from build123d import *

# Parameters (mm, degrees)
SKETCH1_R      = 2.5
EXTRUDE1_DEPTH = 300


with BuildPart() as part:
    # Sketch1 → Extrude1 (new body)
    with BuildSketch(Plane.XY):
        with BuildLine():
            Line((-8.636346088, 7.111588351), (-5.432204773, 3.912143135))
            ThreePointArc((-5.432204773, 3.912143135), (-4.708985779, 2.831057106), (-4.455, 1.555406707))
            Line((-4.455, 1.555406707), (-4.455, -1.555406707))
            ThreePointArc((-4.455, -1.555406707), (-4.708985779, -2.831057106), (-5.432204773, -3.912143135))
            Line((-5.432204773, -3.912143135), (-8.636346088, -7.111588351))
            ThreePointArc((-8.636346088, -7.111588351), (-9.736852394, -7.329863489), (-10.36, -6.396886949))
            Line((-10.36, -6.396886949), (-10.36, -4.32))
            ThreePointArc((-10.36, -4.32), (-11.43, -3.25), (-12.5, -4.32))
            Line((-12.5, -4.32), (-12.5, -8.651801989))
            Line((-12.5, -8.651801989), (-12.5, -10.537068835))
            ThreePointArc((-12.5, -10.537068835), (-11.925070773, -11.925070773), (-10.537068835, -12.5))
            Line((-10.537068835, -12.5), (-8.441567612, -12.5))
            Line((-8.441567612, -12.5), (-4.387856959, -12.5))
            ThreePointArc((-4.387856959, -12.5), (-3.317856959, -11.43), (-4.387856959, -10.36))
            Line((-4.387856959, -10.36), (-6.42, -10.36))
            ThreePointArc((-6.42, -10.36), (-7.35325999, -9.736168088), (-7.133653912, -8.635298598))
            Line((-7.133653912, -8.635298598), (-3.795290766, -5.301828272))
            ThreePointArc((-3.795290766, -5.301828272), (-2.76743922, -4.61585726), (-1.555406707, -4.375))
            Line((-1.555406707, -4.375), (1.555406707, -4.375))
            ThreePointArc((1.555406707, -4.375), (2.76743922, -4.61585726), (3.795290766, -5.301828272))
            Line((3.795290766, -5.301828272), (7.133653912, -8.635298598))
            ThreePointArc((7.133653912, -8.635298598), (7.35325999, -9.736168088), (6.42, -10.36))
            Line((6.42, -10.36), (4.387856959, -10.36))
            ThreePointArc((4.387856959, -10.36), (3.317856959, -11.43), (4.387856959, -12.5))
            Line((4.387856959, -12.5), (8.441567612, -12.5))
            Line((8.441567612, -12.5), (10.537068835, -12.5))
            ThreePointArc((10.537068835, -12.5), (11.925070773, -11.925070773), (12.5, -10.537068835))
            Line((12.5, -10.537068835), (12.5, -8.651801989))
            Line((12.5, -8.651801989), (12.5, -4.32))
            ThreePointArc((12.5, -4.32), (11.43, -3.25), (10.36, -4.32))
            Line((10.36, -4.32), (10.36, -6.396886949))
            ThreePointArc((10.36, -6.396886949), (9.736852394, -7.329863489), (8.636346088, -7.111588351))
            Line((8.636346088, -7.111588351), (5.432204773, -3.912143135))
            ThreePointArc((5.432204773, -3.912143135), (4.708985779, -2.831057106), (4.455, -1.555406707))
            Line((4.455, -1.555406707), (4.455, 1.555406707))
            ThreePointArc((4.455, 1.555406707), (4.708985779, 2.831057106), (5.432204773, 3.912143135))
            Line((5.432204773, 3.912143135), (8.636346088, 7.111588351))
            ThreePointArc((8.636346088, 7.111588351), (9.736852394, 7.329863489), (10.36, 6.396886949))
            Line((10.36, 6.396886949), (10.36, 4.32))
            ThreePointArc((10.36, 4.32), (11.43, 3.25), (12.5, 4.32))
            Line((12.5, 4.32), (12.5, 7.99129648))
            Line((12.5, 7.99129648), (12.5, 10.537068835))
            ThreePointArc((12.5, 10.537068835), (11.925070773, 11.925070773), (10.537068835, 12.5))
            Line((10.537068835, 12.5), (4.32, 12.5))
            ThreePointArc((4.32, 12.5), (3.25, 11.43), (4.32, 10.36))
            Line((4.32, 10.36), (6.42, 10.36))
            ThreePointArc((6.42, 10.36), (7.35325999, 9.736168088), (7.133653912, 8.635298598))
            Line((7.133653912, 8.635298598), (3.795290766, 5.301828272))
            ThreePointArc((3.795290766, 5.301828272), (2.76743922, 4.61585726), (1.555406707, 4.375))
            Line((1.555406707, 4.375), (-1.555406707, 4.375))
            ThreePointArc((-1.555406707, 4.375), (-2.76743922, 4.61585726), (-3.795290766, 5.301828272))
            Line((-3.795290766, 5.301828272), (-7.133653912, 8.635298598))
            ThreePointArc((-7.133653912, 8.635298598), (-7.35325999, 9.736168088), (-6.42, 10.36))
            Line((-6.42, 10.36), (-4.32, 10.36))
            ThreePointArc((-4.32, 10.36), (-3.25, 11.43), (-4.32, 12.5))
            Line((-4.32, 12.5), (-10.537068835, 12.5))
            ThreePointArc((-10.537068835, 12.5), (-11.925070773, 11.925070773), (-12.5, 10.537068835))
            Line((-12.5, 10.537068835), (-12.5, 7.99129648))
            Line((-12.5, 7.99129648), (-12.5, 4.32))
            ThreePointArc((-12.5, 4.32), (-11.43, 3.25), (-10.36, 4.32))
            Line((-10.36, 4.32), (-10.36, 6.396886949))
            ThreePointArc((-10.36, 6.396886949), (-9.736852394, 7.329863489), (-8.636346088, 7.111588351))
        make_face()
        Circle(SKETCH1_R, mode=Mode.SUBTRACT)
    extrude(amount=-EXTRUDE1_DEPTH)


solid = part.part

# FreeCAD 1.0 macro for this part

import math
import FreeCAD as App
import Part
import Sketcher
Q = App.Units.Quantity

doc = App.newDocument("Part")
body = doc.addObject("PartDesign::Body", "Body")

sketch1 = body.newObject("Sketcher::SketchObject", "Sketch")
sketch1.AttachmentSupport = (doc.getObject("XY_Plane"), [""])
sketch1.MapMode = "FlatFace"
sketch1.addGeometry([
    Part.LineSegment(App.Vector(-8.6, 7.1, 0), App.Vector(-5.4, 3.9, 0)),
    Part.ArcOfCircle(Part.Circle(App.Vector(-7.8, 1.6, 0), App.Vector(0, 0, 1), 3.3), math.radians(0), math.radians(45)),
    Part.LineSegment(App.Vector(-4.5, 1.6, 0), App.Vector(-4.5, -1.6, 0)),
    Part.ArcOfCircle(Part.Circle(App.Vector(-7.8, -1.6, 0), App.Vector(0, 0, 1), 3.3), math.radians(-45), math.radians(0)),
    Part.LineSegment(App.Vector(-5.4, -3.9, 0), App.Vector(-8.6, -7.1, 0)),
    Part.ArcOfCircle(Part.Circle(App.Vector(-9.3, -6.4, 0), App.Vector(0, 0, 1), 1), math.radians(-180), math.radians(-45)),
    Part.LineSegment(App.Vector(-10.4, -6.4, 0), App.Vector(-10.4, -4.3, 0)),
    Part.ArcOfCircle(Part.Circle(App.Vector(-11.4, -4.3, 0), App.Vector(0, 0, 1), 1.1), math.radians(0), math.radians(180)),
    Part.LineSegment(App.Vector(-12.5, -4.3, 0), App.Vector(-12.5, -10.5, 0)),
    Part.ArcOfCircle(Part.Circle(App.Vector(-10.5, -10.5, 0), App.Vector(0, 0, 1), 2), math.radians(180), math.radians(270)),
    Part.LineSegment(App.Vector(-10.5, -12.5, 0), App.Vector(-4.4, -12.5, 0)),
    Part.ArcOfCircle(Part.Circle(App.Vector(-4.4, -11.4, 0), App.Vector(0, 0, 1), 1.1), math.radians(-90), math.radians(90)),
    Part.LineSegment(App.Vector(-4.4, -10.4, 0), App.Vector(-6.4, -10.4, 0)),
    Part.ArcOfCircle(Part.Circle(App.Vector(-6.4, -9.3, 0), App.Vector(0, 0, 1), 1), math.radians(135), math.radians(270)),
    Part.LineSegment(App.Vector(-7.1, -8.6, 0), App.Vector(-3.8, -5.3, 0)),
    Part.ArcOfCircle(Part.Circle(App.Vector(-1.6, -7.5, 0), App.Vector(0, 0, 1), 3.2), math.radians(90), math.radians(135)),
    Part.LineSegment(App.Vector(-1.6, -4.4, 0), App.Vector(1.6, -4.4, 0)),
    Part.ArcOfCircle(Part.Circle(App.Vector(1.6, -7.5, 0), App.Vector(0, 0, 1), 3.2), math.radians(45), math.radians(90)),
    Part.LineSegment(App.Vector(3.8, -5.3, 0), App.Vector(7.1, -8.6, 0)),
    Part.ArcOfCircle(Part.Circle(App.Vector(6.4, -9.3, 0), App.Vector(0, 0, 1), 1), math.radians(-90), math.radians(45)),
    Part.LineSegment(App.Vector(6.4, -10.4, 0), App.Vector(4.4, -10.4, 0)),
    Part.ArcOfCircle(Part.Circle(App.Vector(4.4, -11.4, 0), App.Vector(0, 0, 1), 1.1), math.radians(90), math.radians(270)),
    Part.LineSegment(App.Vector(4.4, -12.5, 0), App.Vector(10.5, -12.5, 0)),
    Part.ArcOfCircle(Part.Circle(App.Vector(10.5, -10.5, 0), App.Vector(0, 0, 1), 2), math.radians(-90), math.radians(0)),
    Part.LineSegment(App.Vector(12.5, -10.5, 0), App.Vector(12.5, -4.3, 0)),
    Part.ArcOfCircle(Part.Circle(App.Vector(11.4, -4.3, 0), App.Vector(0, 0, 1), 1.1), math.radians(0), math.radians(180)),
    Part.LineSegment(App.Vector(10.4, -4.3, 0), App.Vector(10.4, -6.4, 0)),
    Part.ArcOfCircle(Part.Circle(App.Vector(9.3, -6.4, 0), App.Vector(0, 0, 1), 1), math.radians(-135), math.radians(0)),
    Part.LineSegment(App.Vector(8.6, -7.1, 0), App.Vector(5.4, -3.9, 0)),
    Part.ArcOfCircle(Part.Circle(App.Vector(7.8, -1.6, 0), App.Vector(0, 0, 1), 3.3), math.radians(180), math.radians(225)),
    Part.LineSegment(App.Vector(4.5, -1.6, 0), App.Vector(4.5, 1.6, 0)),
    Part.ArcOfCircle(Part.Circle(App.Vector(7.8, 1.6, 0), App.Vector(0, 0, 1), 3.3), math.radians(135), math.radians(180)),
    Part.LineSegment(App.Vector(5.4, 3.9, 0), App.Vector(8.6, 7.1, 0)),
    Part.ArcOfCircle(Part.Circle(App.Vector(9.3, 6.4, 0), App.Vector(0, 0, 1), 1), math.radians(0), math.radians(135)),
    Part.LineSegment(App.Vector(10.4, 6.4, 0), App.Vector(10.4, 4.3, 0)),
    Part.ArcOfCircle(Part.Circle(App.Vector(11.4, 4.3, 0), App.Vector(0, 0, 1), 1.1), math.radians(180), math.radians(360)),
    Part.LineSegment(App.Vector(12.5, 4.3, 0), App.Vector(12.5, 10.5, 0)),
    Part.ArcOfCircle(Part.Circle(App.Vector(10.5, 10.5, 0), App.Vector(0, 0, 1), 2), math.radians(0), math.radians(90)),
    Part.LineSegment(App.Vector(10.5, 12.5, 0), App.Vector(4.3, 12.5, 0)),
    Part.ArcOfCircle(Part.Circle(App.Vector(4.3, 11.4, 0), App.Vector(0, 0, 1), 1.1), math.radians(90), math.radians(270)),
    Part.LineSegment(App.Vector(4.3, 10.4, 0), App.Vector(6.4, 10.4, 0)),
    Part.ArcOfCircle(Part.Circle(App.Vector(6.4, 9.3, 0), App.Vector(0, 0, 1), 1), math.radians(-45), math.radians(90)),
    Part.LineSegment(App.Vector(7.1, 8.6, 0), App.Vector(3.8, 5.3, 0)),
    Part.ArcOfCircle(Part.Circle(App.Vector(1.6, 7.5, 0), App.Vector(0, 0, 1), 3.2), math.radians(-90), math.radians(-45)),
    Part.LineSegment(App.Vector(1.6, 4.4, 0), App.Vector(-1.6, 4.4, 0)),
    Part.ArcOfCircle(Part.Circle(App.Vector(-1.6, 7.5, 0), App.Vector(0, 0, 1), 3.2), math.radians(-135), math.radians(-90)),
    Part.LineSegment(App.Vector(-3.8, 5.3, 0), App.Vector(-7.1, 8.6, 0)),
    Part.ArcOfCircle(Part.Circle(App.Vector(-6.4, 9.3, 0), App.Vector(0, 0, 1), 1), math.radians(90), math.radians(225)),
    Part.LineSegment(App.Vector(-6.4, 10.4, 0), App.Vector(-4.3, 10.4, 0)),
    Part.ArcOfCircle(Part.Circle(App.Vector(-4.3, 11.4, 0), App.Vector(0, 0, 1), 1.1), math.radians(-90), math.radians(90)),
    Part.LineSegment(App.Vector(-4.3, 12.5, 0), App.Vector(-10.5, 12.5, 0)),
    Part.ArcOfCircle(Part.Circle(App.Vector(-10.5, 10.5, 0), App.Vector(0, 0, 1), 2), math.radians(90), math.radians(180)),
    Part.LineSegment(App.Vector(-12.5, 10.5, 0), App.Vector(-12.5, 4.3, 0)),
    Part.ArcOfCircle(Part.Circle(App.Vector(-11.4, 4.3, 0), App.Vector(0, 0, 1), 1.1), math.radians(180), math.radians(360)),
    Part.LineSegment(App.Vector(-10.4, 4.3, 0), App.Vector(-10.4, 6.4, 0)),
    Part.ArcOfCircle(Part.Circle(App.Vector(-9.3, 6.4, 0), App.Vector(0, 0, 1), 1), math.radians(45), math.radians(180)),
    Part.Circle(App.Vector(0, 0, 0), App.Vector(0, 0, 1), 2.5),
], False)
sketch1.addConstraint([
    Sketcher.Constraint("Tangent", 0, 2, 1, 2),
    Sketcher.Constraint("Tangent", 1, 1, 2, 1),
    Sketcher.Constraint("Tangent", 2, 2, 3, 2),
    Sketcher.Constraint("Tangent", 3, 1, 4, 1),
    Sketcher.Constraint("Tangent", 4, 2, 5, 2),
    Sketcher.Constraint("Tangent", 5, 1, 6, 1),
    Sketcher.Constraint("Tangent", 6, 2, 7, 1),
    Sketcher.Constraint("Tangent", 7, 2, 8, 1),
    Sketcher.Constraint("Tangent", 8, 2, 9, 1),
    Sketcher.Constraint("Tangent", 9, 2, 10, 1),
    Sketcher.Constraint("Tangent", 10, 2, 11, 1),
    Sketcher.Constraint("Tangent", 11, 2, 12, 1),
    Sketcher.Constraint("Tangent", 12, 2, 13, 2),
    Sketcher.Constraint("Tangent", 13, 1, 14, 1),
    Sketcher.Constraint("Tangent", 14, 2, 15, 2),
    Sketcher.Constraint("Tangent", 15, 1, 16, 1),
    Sketcher.Constraint("Tangent", 16, 2, 17, 2),
    Sketcher.Constraint("Tangent", 17, 1, 18, 1),
    Sketcher.Constraint("Tangent", 18, 2, 19, 2),
    Sketcher.Constraint("Tangent", 19, 1, 20, 1),
    Sketcher.Constraint("Tangent", 20, 2, 21, 1),
    Sketcher.Constraint("Tangent", 21, 2, 22, 1),
    Sketcher.Constraint("Tangent", 22, 2, 23, 1),
    Sketcher.Constraint("Tangent", 23, 2, 24, 1),
    Sketcher.Constraint("Tangent", 24, 2, 25, 1),
    Sketcher.Constraint("Tangent", 25, 2, 26, 1),
    Sketcher.Constraint("Tangent", 26, 2, 27, 2),
    Sketcher.Constraint("Tangent", 27, 1, 28, 1),
    Sketcher.Constraint("Tangent", 28, 2, 29, 2),
    Sketcher.Constraint("Tangent", 29, 1, 30, 1),
    Sketcher.Constraint("Tangent", 30, 2, 31, 2),
    Sketcher.Constraint("Tangent", 31, 1, 32, 1),
    Sketcher.Constraint("Tangent", 32, 2, 33, 2),
    Sketcher.Constraint("Tangent", 33, 1, 34, 1),
    Sketcher.Constraint("Tangent", 34, 2, 35, 1),
    Sketcher.Constraint("Tangent", 35, 2, 36, 1),
    Sketcher.Constraint("Tangent", 36, 2, 37, 1),
    Sketcher.Constraint("Tangent", 37, 2, 38, 1),
    Sketcher.Constraint("Tangent", 38, 2, 39, 1),
    Sketcher.Constraint("Tangent", 39, 2, 40, 1),
    Sketcher.Constraint("Tangent", 40, 2, 41, 2),
    Sketcher.Constraint("Tangent", 41, 1, 42, 1),
    Sketcher.Constraint("Tangent", 42, 2, 43, 2),
    Sketcher.Constraint("Tangent", 43, 1, 44, 1),
    Sketcher.Constraint("Tangent", 44, 2, 45, 2),
    Sketcher.Constraint("Tangent", 45, 1, 46, 1),
    Sketcher.Constraint("Tangent", 46, 2, 47, 2),
    Sketcher.Constraint("Tangent", 47, 1, 48, 1),
    Sketcher.Constraint("Tangent", 48, 2, 49, 1),
    Sketcher.Constraint("Tangent", 49, 2, 50, 1),
    Sketcher.Constraint("Tangent", 50, 2, 51, 1),
    Sketcher.Constraint("Tangent", 51, 2, 52, 1),
    Sketcher.Constraint("Tangent", 52, 2, 53, 1),
    Sketcher.Constraint("Tangent", 53, 2, 54, 1),
    Sketcher.Constraint("Tangent", 54, 2, 55, 2),
    Sketcher.Constraint("Tangent", 55, 1, 0, 1),
    Sketcher.Constraint("Vertical", 2),
    Sketcher.Constraint("Vertical", 6),
    Sketcher.Constraint("Vertical", 8),
    Sketcher.Constraint("Horizontal", 10),
    Sketcher.Constraint("Horizontal", 12),
    Sketcher.Constraint("Horizontal", 16),
    Sketcher.Constraint("Horizontal", 20),
    Sketcher.Constraint("Horizontal", 22),
    Sketcher.Constraint("Vertical", 24),
    Sketcher.Constraint("Vertical", 26),
    Sketcher.Constraint("Vertical", 30),
    Sketcher.Constraint("Vertical", 34),
    Sketcher.Constraint("Vertical", 36),
    Sketcher.Constraint("Horizontal", 38),
    Sketcher.Constraint("Horizontal", 40),
    Sketcher.Constraint("Horizontal", 44),
    Sketcher.Constraint("Horizontal", 48),
    Sketcher.Constraint("Horizontal", 50),
    Sketcher.Constraint("Vertical", 52),
    Sketcher.Constraint("Vertical", 54),
    Sketcher.Constraint("Coincident", 56, 3, -1, 1),
    Sketcher.Constraint("Equal", 1, 3),
    Sketcher.Constraint("Equal", 7, 11),
    Sketcher.Constraint("Equal", 5, 13),
    Sketcher.Constraint("Equal", 15, 17),
    Sketcher.Constraint("Equal", 13, 19),
    Sketcher.Constraint("Equal", 11, 21),
    Sketcher.Constraint("Equal", 9, 23),
    Sketcher.Constraint("Equal", 21, 25),
    Sketcher.Constraint("Equal", 19, 27),
    Sketcher.Constraint("Equal", 3, 29),
    Sketcher.Constraint("Equal", 29, 31),
    Sketcher.Constraint("Equal", 27, 33),
    Sketcher.Constraint("Equal", 25, 35),
    Sketcher.Constraint("Equal", 23, 37),
    Sketcher.Constraint("Equal", 35, 39),
    Sketcher.Constraint("Equal", 33, 41),
    Sketcher.Constraint("Equal", 17, 43),
    Sketcher.Constraint("Equal", 43, 45),
    Sketcher.Constraint("Equal", 41, 47),
    Sketcher.Constraint("Equal", 39, 49),
    Sketcher.Constraint("Equal", 37, 51),
    Sketcher.Constraint("Equal", 49, 53),
    Sketcher.Constraint("Equal", 47, 55),
    Sketcher.Constraint("Symmetric", 1, 3, 29, 3, -1, 1),
    Sketcher.Constraint("Symmetric", 5, 3, 33, 3, -1, 1),
    Sketcher.Constraint("Symmetric", 13, 3, 41, 3, -1, 1),
    Sketcher.Constraint("Symmetric", 15, 3, 43, 3, -1, 1),
    Sketcher.Constraint("Symmetric", 19, 3, 47, 3, -1, 1),
    Sketcher.Constraint("Symmetric", 25, 3, 53, 3, -1, 1),
    Sketcher.Constraint("Symmetric", 13, 3, 19, 3, -2),
    Sketcher.Constraint("Symmetric", 7, 3, 25, 3, -2),
    Sketcher.Constraint("Symmetric", 4, 2, 27, 1, -2),
    Sketcher.Constraint("Symmetric", 0, 2, 31, 1, -2),
    Sketcher.Constraint("Parallel", 4, 14),
    Sketcher.Constraint("Parallel", 0, 18),
    Sketcher.Constraint("Parallel", 28, 46),
    Sketcher.Constraint("Horizontal", 35, 3, 53, 3),
    Sketcher.Constraint("Equal", 12, 20),
    Sketcher.Constraint("Equal", 40, 48),
    Sketcher.Constraint("Equal", 44, 2),
    Sketcher.Constraint("Equal", 50, 8),
    Sketcher.Constraint("Diameter", 56, Q("5 mm")),
    Sketcher.Constraint("Radius", 5, Q("1.01 mm")),
    Sketcher.Constraint("Radius", 7, Q("1.07 mm")),
    Sketcher.Constraint("Radius", 15, Q("3.17 mm")),
    Sketcher.Constraint("DistanceX", 40, 1, 40, 2, Q("2.1 mm")),
    Sketcher.Constraint("DistanceX", 7, 2, -1, 1, Q("12.5 mm")),
    Sketcher.Constraint("DistanceY", 9, 2, -1, 1, Q("12.5 mm")),
    Sketcher.Constraint("DistanceY", 7, 3, -1, 1, Q("4.32 mm")),
    Sketcher.Constraint("Radius", 9, Q("1.962931 mm")),
    Sketcher.Constraint("DistanceY", 15, 3, -1, 1, Q("7.545 mm")),
    Sketcher.Constraint("DistanceX", 1, 1, -1, 1, Q("4.455 mm")),
    Sketcher.Constraint("Radius", 1, Q("3.330487 mm")),
    Sketcher.Constraint("Distance", 14, Q("4.7177 mm")),
    Sketcher.Constraint("DistanceX", 10, 1, 10, 2, Q("6.149212 mm")),
])
pad1 = body.newObject("PartDesign::Pad", "Pad")
pad1.Profile = sketch1
pad1.Length = 300
pad1.Reversed = True

doc.recompute()
